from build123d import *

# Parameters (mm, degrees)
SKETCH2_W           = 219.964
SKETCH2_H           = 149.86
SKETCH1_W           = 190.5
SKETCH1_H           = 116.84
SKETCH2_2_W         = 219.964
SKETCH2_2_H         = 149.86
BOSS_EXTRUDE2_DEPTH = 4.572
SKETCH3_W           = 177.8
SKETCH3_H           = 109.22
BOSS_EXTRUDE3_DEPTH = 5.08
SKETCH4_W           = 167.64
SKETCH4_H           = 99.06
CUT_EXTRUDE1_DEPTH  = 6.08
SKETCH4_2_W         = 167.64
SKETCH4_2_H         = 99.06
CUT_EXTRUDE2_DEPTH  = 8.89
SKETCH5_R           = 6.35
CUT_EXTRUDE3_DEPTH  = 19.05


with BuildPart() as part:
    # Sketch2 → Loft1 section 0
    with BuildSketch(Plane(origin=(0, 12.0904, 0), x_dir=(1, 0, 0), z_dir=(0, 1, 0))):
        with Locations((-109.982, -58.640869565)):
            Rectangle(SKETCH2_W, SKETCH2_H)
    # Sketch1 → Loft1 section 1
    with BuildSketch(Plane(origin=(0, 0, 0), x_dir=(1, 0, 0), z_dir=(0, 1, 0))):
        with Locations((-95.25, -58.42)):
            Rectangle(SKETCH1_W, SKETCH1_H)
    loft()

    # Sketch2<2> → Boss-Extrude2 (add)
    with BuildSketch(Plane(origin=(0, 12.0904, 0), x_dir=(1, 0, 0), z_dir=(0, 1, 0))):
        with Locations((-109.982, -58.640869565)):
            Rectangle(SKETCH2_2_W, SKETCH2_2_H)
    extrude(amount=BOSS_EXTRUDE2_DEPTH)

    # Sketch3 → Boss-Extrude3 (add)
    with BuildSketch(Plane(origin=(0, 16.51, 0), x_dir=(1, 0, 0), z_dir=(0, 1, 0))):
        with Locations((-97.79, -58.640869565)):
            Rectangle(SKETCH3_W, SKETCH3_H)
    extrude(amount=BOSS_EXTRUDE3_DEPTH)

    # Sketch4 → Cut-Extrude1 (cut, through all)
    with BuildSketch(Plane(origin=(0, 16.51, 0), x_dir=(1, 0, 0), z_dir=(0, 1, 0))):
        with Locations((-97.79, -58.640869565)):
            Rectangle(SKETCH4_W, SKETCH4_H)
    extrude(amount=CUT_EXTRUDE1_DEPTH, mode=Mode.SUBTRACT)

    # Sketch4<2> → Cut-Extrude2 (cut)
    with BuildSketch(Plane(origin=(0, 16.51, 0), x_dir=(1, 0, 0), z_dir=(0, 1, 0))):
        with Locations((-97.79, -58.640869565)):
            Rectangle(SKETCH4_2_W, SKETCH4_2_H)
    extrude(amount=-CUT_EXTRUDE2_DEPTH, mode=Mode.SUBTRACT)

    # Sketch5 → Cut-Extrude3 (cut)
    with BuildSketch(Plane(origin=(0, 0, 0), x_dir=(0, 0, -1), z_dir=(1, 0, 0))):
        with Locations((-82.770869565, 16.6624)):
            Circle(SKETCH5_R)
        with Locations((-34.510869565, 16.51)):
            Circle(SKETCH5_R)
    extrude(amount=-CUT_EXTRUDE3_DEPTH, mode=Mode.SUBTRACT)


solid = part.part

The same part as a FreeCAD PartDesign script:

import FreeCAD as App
import Part
import Sketcher
from FreeCAD import Vector
Q = App.Units.Quantity


def add_polygon(sketch, points):
    """Adds a closed chain of lines whose ends are joined by coincident constraints."""
    first, n = sketch.GeometryCount, len(points)
    for a, b in zip(points, points[1:] + points[:1]):
        sketch.addGeometry(Part.LineSegment(App.Vector(*a, 0), App.Vector(*b, 0)), False)
    for i in range(n):
        sketch.addConstraint(Sketcher.Constraint("Coincident", first + i, 2, first + (i + 1) % n, 1))

doc = App.newDocument("Part")
body = doc.addObject("PartDesign::Body", "Body")

sketch1 = body.newObject("Sketcher::SketchObject", "Sketch")
sketch1.AttachmentSupport = (doc.getObject("XZ_Plane"), [""])
sketch1.MapMode = "FlatFace"
sketch1.AttachmentOffset = App.Placement(Vector(0, 0, -0.476 * 25.4), App.Rotation())
add_polygon(sketch1, [(-219.964, -16.28913), (-219.964, 133.57087), (0, 133.57087), (0, -16.28913)])
sketch1.addConstraint(Sketcher.Constraint("Vertical", 0))
sketch1.addConstraint(Sketcher.Constraint("Horizontal", 1))
sketch1.addConstraint(Sketcher.Constraint("Vertical", 2))
sketch1.addConstraint(Sketcher.Constraint("Horizontal", 3))
sketch1.addConstraint(Sketcher.Constraint("PointOnObject", 1, 2, -2))
sketch1.addConstraint(Sketcher.Constraint("DistanceY", 0, 1, 0, 2, Q("5.9 in")))
sketch1.addConstraint(Sketcher.Constraint("DistanceX", 1, 1, 1, 2, Q("8.66 in")))
sketch1.addConstraint(Sketcher.Constraint("DistanceY", -1, 1, 0, 2, 133.57087))

sketch2 = body.newObject("Sketcher::SketchObject", "Sketch001")
sketch2.AttachmentSupport = (doc.getObject("XZ_Plane"), [""])
sketch2.MapMode = "FlatFace"
add_polygon(sketch2, [(-190.5, 0), (-190.5, 116.84), (0, 116.84), (0, 0)])
sketch2.addConstraint(Sketcher.Constraint("Vertical", 0))
sketch2.addConstraint(Sketcher.Constraint("Horizontal", 1))
sketch2.addConstraint(Sketcher.Constraint("Vertical", 2))
sketch2.addConstraint(Sketcher.Constraint("Horizontal", 3))
sketch2.addConstraint(Sketcher.Constraint("Coincident", 2, 2, -1, 1))
sketch2.addConstraint(Sketcher.Constraint("DistanceX", 1, 1, 1, 2, Q("7.5 in")))
sketch2.addConstraint(Sketcher.Constraint("DistanceY", 0, 1, 0, 2, Q("4.6 in")))

additiveloft = body.newObject("PartDesign::AdditiveLoft", "AdditiveLoft")
additiveloft.Profile = sketch1
additiveloft.Sections = [sketch2]

sketch3 = body.newObject("Sketcher::SketchObject", "Sketch002")
sketch3.AttachmentSupport = (doc.getObject("XZ_Plane"), [""])
sketch3.MapMode = "FlatFace"
sketch3.AttachmentOffset = App.Placement(Vector(0, 0, -0.476 * 25.4), App.Rotation())
add_polygon(sketch3, [(-219.964, -16.28913), (-219.964, 133.57087), (0, 133.57087), (0, -16.28913)])
sketch3.addConstraint(Sketcher.Constraint("Vertical", 0))
sketch3.addConstraint(Sketcher.Constraint("Horizontal", 1))
sketch3.addConstraint(Sketcher.Constraint("Vertical", 2))
sketch3.addConstraint(Sketcher.Constraint("Horizontal", 3))
sketch3.addConstraint(Sketcher.Constraint("PointOnObject", 1, 2, -2))
sketch3.addConstraint(Sketcher.Constraint("DistanceY", 0, 1, 0, 2, Q("5.9 in")))
sketch3.addConstraint(Sketcher.Constraint("DistanceX", 1, 1, 1, 2, Q("8.66 in")))
sketch3.addConstraint(Sketcher.Constraint("DistanceY", -1, 1, 0, 2, 133.57087))
pad1 = body.newObject("PartDesign::Pad", "Pad")
pad1.Profile = sketch3
pad1.Length = Q("0.18 in")
pad1.Reversed = True

sketch4 = body.newObject("Sketcher::SketchObject", "Sketch003")
sketch4.AttachmentSupport = (doc.getObject("XZ_Plane"), [""])
sketch4.MapMode = "FlatFace"
sketch4.AttachmentOffset = App.Placement(Vector(0, 0, -0.65 * 25.4), App.Rotation())
add_polygon(sketch4, [(-186.69, 4.03087), (-186.69, 113.25087), (-8.89, 113.25087), (-8.89, 4.03087)])
sketch4.addConstraint(Sketcher.Constraint("Vertical", 0))
sketch4.addConstraint(Sketcher.Constraint("Horizontal", 1))
sketch4.addConstraint(Sketcher.Constraint("Vertical", 2))
sketch4.addConstraint(Sketcher.Constraint("Horizontal", 3))
sketch4.addConstraint(Sketcher.Constraint("DistanceX", 1, 1, 1, 2, Q("7 in")))
sketch4.addConstraint(Sketcher.Constraint("DistanceY", 0, 1, 0, 2, Q("4.3 in")))
sketch4.addConstraint(Sketcher.Constraint("DistanceX", 0, 2, -1, 1, Q("7.35 in")))
sketch4.addConstraint(Sketcher.Constraint("DistanceY", -1, 1, 0, 2, 113.25087))
pad2 = body.newObject("PartDesign::Pad", "Pad001")
pad2.Profile = sketch4
pad2.Length = Q("0.2 in")
pad2.Reversed = True

sketch5 = body.newObject("Sketcher::SketchObject", "Sketch004")
sketch5.AttachmentSupport = (doc.getObject("XZ_Plane"), [""])
sketch5.MapMode = "FlatFace"
sketch5.AttachmentOffset = App.Placement(Vector(0, 0, -0.65 * 25.4), App.Rotation())
add_polygon(sketch5, [(-181.61, 9.11087), (-181.61, 108.17087), (-13.97, 108.17087), (-13.97, 9.11087)])
sketch5.addConstraint(Sketcher.Constraint("Vertical", 0))
sketch5.addConstraint(Sketcher.Constraint("Horizontal", 1))
sketch5.addConstraint(Sketcher.Constraint("Vertical", 2))
sketch5.addConstraint(Sketcher.Constraint("Horizontal", 3))
sketch5.addConstraint(Sketcher.Constraint("DistanceX", 1, 1, 1, 2, Q("6.6 in")))
sketch5.addConstraint(Sketcher.Constraint("DistanceY", 0, 1, 0, 2, Q("3.9 in")))
sketch5.addConstraint(Sketcher.Constraint("DistanceX", 0, 2, -1, 1, Q("7.15 in")))
sketch5.addConstraint(Sketcher.Constraint("DistanceY", -1, 1, 0, 2, 108.17087))
pocket1 = body.newObject("PartDesign::Pocket", "Pocket")
pocket1.Profile = sketch5
pocket1.Type = "ThroughAll"

sketch6 = body.newObject("Sketcher::SketchObject", "Sketch005")
sketch6.AttachmentSupport = (doc.getObject("XZ_Plane"), [""])
sketch6.MapMode = "FlatFace"
sketch6.AttachmentOffset = App.Placement(Vector(0, 0, -0.65 * 25.4), App.Rotation())
add_polygon(sketch6, [(-181.61, 9.11087), (-181.61, 108.17087), (-13.97, 108.17087), (-13.97, 9.11087)])
sketch6.addConstraint(Sketcher.Constraint("Vertical", 0))
sketch6.addConstraint(Sketcher.Constraint("Horizontal", 1))
sketch6.addConstraint(Sketcher.Constraint("Vertical", 2))
sketch6.addConstraint(Sketcher.Constraint("Horizontal", 3))
sketch6.addConstraint(Sketcher.Constraint("DistanceX", 1, 1, 1, 2, Q("6.6 in")))
sketch6.addConstraint(Sketcher.Constraint("DistanceY", 0, 1, 0, 2, Q("3.9 in")))
sketch6.addConstraint(Sketcher.Constraint("DistanceX", 0, 2, -1, 1, Q("7.15 in")))
sketch6.addConstraint(Sketcher.Constraint("DistanceY", -1, 1, 0, 2, 108.17087))
pocket2 = body.newObject("PartDesign::Pocket", "Pocket001")
pocket2.Profile = sketch6
pocket2.Length = Q("0.35 in")
pocket2.Reversed = True

sketch7 = body.newObject("Sketcher::SketchObject", "Sketch006")
sketch7.AttachmentSupport = (doc.getObject("YZ_Plane"), [""])
sketch7.MapMode = "FlatFace"
sketch7.addGeometry(Part.Circle(Vector(16.6624, 82.77087, 0), Vector(0, 0, 1), 6.35), False)
sketch7.addGeometry(Part.Circle(Vector(16.51, 34.51087, 0), Vector(0, 0, 1), 6.35), False)
sketch7.addConstraint(Sketcher.Constraint("Equal", 0, 1))
sketch7.addConstraint(Sketcher.Constraint("Diameter", 0, Q("0.5 in")))
sketch7.addConstraint(Sketcher.Constraint("DistanceY", 1, 3, 0, 3, Q("1.9 in")))
sketch7.addConstraint(Sketcher.Constraint("DistanceX", -1, 1, 1, 3, Q("0.65 in")))
sketch7.addConstraint(Sketcher.Constraint("DistanceX", -1, 1, 0, 3, Q("0.656 in")))
sketch7.addConstraint(Sketcher.Constraint("DistanceY", -1, 1, 0, 3, 82.77087))
pocket3 = body.newObject("PartDesign::Pocket", "Pocket002")
pocket3.Profile = sketch7
pocket3.Length = Q("0.75 in")

doc.recompute()
